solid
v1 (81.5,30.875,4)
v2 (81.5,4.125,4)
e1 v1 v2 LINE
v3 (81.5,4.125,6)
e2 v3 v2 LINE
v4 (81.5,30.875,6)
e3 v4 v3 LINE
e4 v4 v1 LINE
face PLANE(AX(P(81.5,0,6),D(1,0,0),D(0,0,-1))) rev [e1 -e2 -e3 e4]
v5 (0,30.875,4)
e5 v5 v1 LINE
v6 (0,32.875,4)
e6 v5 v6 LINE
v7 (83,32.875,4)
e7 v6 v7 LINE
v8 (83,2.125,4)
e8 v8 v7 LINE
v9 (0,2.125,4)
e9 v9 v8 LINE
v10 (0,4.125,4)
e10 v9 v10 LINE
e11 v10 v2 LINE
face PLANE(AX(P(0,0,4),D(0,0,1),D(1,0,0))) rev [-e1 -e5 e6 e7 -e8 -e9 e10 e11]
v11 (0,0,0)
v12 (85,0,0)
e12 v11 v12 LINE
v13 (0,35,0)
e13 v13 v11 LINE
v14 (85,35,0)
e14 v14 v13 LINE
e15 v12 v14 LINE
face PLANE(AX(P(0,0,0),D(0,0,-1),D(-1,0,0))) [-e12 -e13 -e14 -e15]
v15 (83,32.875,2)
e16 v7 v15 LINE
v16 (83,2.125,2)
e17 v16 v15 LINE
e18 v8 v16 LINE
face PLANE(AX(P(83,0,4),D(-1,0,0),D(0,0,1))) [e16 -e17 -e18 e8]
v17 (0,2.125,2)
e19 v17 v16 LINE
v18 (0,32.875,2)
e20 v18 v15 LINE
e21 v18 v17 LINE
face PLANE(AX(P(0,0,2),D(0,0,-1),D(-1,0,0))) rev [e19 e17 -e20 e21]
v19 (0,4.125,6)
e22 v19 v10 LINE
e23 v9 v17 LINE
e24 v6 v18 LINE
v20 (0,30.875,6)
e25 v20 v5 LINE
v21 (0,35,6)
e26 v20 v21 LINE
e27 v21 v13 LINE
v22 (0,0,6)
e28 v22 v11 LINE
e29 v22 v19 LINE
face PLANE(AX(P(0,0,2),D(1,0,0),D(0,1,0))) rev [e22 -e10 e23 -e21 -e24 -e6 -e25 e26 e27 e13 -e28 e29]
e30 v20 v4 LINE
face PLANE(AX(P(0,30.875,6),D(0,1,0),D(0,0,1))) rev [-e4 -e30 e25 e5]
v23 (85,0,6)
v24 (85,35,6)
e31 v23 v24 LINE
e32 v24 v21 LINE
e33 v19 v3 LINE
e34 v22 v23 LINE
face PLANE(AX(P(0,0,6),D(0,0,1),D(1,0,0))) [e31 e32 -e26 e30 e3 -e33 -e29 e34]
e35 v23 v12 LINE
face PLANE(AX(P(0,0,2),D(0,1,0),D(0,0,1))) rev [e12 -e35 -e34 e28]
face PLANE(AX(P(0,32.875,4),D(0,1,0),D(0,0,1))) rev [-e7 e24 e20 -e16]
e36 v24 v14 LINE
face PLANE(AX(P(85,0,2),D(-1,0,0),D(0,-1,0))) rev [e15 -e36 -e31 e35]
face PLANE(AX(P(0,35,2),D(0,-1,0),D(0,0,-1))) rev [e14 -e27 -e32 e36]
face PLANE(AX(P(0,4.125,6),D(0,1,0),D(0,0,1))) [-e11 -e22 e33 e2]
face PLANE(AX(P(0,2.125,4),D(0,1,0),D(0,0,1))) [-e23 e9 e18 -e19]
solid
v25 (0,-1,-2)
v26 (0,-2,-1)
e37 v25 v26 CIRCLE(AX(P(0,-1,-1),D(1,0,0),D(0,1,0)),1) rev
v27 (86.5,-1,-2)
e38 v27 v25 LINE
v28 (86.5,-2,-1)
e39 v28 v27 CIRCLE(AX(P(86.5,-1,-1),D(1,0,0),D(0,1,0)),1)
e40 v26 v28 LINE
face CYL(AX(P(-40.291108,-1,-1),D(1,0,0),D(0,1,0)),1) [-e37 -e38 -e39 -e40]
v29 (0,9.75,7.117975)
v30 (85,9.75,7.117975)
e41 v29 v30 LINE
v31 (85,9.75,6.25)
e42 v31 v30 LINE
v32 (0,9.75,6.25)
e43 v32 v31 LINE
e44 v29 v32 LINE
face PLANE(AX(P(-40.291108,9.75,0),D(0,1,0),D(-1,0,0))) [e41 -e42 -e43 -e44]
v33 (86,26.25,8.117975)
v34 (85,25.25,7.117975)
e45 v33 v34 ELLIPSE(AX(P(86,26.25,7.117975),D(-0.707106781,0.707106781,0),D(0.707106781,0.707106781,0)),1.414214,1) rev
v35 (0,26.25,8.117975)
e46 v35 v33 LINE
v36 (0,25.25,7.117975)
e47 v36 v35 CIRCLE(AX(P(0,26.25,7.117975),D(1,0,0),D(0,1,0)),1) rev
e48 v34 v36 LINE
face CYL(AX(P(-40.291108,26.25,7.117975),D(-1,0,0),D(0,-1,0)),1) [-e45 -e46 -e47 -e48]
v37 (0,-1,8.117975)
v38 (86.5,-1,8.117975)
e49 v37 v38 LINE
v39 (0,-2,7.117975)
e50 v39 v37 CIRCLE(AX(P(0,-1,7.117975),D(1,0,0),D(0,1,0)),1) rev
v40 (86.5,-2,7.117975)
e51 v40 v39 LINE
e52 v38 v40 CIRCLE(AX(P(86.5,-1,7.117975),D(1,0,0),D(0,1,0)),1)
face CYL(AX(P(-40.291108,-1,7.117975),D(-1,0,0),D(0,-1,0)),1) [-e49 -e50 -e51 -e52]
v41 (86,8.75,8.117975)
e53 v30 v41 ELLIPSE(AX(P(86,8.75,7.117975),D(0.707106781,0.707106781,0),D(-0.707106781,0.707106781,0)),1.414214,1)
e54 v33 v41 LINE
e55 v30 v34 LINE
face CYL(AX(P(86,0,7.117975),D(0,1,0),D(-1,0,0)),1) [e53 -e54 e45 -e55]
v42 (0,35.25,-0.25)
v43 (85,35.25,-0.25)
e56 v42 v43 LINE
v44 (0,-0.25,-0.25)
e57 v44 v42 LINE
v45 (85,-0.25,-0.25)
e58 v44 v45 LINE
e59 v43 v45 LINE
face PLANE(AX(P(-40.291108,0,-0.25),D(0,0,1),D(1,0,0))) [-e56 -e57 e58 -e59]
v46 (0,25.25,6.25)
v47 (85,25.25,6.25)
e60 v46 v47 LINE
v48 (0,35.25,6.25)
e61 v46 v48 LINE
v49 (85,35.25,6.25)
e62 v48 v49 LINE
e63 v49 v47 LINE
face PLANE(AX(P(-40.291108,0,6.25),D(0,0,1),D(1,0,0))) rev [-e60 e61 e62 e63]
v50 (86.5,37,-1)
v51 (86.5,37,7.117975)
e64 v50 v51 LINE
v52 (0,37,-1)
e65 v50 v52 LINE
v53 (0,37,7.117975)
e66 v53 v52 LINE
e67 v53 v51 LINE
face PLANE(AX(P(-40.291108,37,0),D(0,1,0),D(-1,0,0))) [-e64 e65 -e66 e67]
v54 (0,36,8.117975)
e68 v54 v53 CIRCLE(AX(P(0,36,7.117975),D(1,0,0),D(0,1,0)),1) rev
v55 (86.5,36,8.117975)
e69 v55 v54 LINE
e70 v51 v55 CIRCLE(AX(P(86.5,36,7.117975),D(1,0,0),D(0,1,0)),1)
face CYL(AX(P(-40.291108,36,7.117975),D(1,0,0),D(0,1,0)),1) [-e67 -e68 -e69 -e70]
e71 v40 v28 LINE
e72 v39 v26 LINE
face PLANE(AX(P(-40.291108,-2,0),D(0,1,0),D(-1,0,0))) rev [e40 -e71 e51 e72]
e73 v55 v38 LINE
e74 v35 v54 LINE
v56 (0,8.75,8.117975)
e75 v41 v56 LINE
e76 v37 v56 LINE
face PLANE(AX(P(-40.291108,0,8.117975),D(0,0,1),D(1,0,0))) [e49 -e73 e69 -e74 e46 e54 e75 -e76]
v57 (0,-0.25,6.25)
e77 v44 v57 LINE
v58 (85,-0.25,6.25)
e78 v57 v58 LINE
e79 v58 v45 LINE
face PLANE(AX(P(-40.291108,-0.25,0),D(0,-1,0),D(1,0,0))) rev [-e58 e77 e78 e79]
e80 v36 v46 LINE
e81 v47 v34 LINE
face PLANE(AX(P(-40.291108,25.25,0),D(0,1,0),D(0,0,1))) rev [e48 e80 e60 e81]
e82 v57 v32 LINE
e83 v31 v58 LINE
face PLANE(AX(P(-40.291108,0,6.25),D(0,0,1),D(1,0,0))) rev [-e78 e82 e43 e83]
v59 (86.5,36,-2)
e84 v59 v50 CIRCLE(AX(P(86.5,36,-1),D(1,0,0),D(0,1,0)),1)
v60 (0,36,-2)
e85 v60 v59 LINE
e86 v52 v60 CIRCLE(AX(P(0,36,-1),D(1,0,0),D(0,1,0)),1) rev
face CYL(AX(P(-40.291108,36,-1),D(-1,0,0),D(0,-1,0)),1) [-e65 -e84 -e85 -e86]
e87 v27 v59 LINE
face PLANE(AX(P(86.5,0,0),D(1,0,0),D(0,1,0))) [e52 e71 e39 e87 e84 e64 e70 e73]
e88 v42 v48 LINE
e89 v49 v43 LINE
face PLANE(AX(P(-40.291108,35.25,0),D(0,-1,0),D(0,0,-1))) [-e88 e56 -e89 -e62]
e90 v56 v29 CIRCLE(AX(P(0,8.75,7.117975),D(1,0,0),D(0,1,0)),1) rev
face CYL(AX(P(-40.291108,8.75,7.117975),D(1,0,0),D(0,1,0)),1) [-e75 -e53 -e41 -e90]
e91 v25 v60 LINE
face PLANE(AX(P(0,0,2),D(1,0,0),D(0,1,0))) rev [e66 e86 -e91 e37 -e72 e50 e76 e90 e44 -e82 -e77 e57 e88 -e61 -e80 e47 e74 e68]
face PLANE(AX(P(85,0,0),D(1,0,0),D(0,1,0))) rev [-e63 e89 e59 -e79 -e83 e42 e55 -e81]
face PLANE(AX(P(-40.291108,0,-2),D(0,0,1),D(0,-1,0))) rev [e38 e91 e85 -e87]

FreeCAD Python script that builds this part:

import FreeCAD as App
import Part
import Sketcher
from FreeCAD import Vector


def edges_at(feature, points):
    """Names of the edges that pass closest to the given points."""
    edges = feature.Shape.Edges
    near = lambda p: min(range(len(edges)), key=lambda i: edges[i].distToShape(Part.Vertex(*p))[0])
    return sorted({f"Edge{near(p) + 1}" for p in points})


def add_polygon(sketch, points):
    """Adds a closed chain of lines whose ends are joined by coincident constraints."""
    first, n = sketch.GeometryCount, len(points)
    for a, b in zip(points, points[1:] + points[:1]):
        sketch.addGeometry(Part.LineSegment(App.Vector(*a, 0), App.Vector(*b, 0)), False)
    for i in range(n):
        sketch.addConstraint(Sketcher.Constraint("Coincident", first + i, 2, first + (i + 1) % n, 1))

doc = App.newDocument("Part")
body = doc.addObject("PartDesign::Body", "Body")

# Sketch on XY plane
sketch1 = body.newObject("Sketcher::SketchObject", "Sketch")
sketch1.AttachmentSupport = (doc.getObject("XY_Plane"), [""])
sketch1.MapMode = "FlatFace"
add_polygon(sketch1, [(0, 35), (0, 0), (85, 0), (85, 35)])  # lines 0-3
sketch1.addConstraint(Sketcher.Constraint("Vertical", 0))
sketch1.addConstraint(Sketcher.Constraint("Horizontal", 1))
sketch1.addConstraint(Sketcher.Constraint("Vertical", 2))
sketch1.addConstraint(Sketcher.Constraint("Horizontal", 3))
sketch1.addConstraint(Sketcher.Constraint("Coincident", 0, 2, -1, 1))
sketch1.addConstraint(Sketcher.Constraint("DistanceX", 1, 1, 1, 2, 85.0))
sketch1.addConstraint(Sketcher.Constraint("DistanceY", 0, 2, 0, 1, 35.0))
pad1 = body.newObject("PartDesign::Pad", "Pad")
pad1.Profile = sketch1
pad1.Length = 2

# Sketch on XY plane
sketch2 = body.newObject("Sketcher::SketchObject", "Sketch001")
sketch2.AttachmentSupport = (doc.getObject("XY_Plane"), [""])
sketch2.MapMode = "FlatFace"
sketch2.AttachmentOffset = App.Placement(Vector(0, 0, 2), App.Rotation())
add_polygon(sketch2, [(83, 2.1), (0, 2.1), (0, 0), (85, 0), (85, 35), (0, 35), (0, 32.9), (83, 32.9)])  # lines 0-7
sketch2.addConstraint(Sketcher.Constraint("Horizontal", 0))
sketch2.addConstraint(Sketcher.Constraint("Vertical", 1))
sketch2.addConstraint(Sketcher.Constraint("Horizontal", 2))
sketch2.addConstraint(Sketcher.Constraint("Vertical", 3))
sketch2.addConstraint(Sketcher.Constraint("Horizontal", 4))
sketch2.addConstraint(Sketcher.Constraint("Vertical", 5))
sketch2.addConstraint(Sketcher.Constraint("Horizontal", 6))
sketch2.addConstraint(Sketcher.Constraint("Vertical", 7))
sketch2.addConstraint(Sketcher.Constraint("Coincident", 1, 2, -1, 1))
sketch2.addConstraint(Sketcher.Constraint("PointOnObject", 4, 2, -2))
sketch2.addConstraint(Sketcher.Constraint("Equal", 1, 5))
sketch2.addConstraint(Sketcher.Constraint("DistanceX", 0, 2, 0, 1, 83.0))
sketch2.addConstraint(Sketcher.Constraint("DistanceX", 2, 1, 2, 2, 85.0))
sketch2.addConstraint(Sketcher.Constraint("DistanceY", 3, 1, 3, 2, 35.0))
sketch2.addConstraint(Sketcher.Constraint("DistanceY", 7, 2, 7, 1, 30.75))
pad2 = body.newObject("PartDesign::Pad", "Pad001")
pad2.Profile = sketch2
pad2.Length = 2

# Sketch on XY plane
sketch3 = body.newObject("Sketcher::SketchObject", "Sketch002")
sketch3.AttachmentSupport = (doc.getObject("XY_Plane"), [""])
sketch3.MapMode = "FlatFace"
sketch3.AttachmentOffset = App.Placement(Vector(0, 0, 4), App.Rotation())
add_polygon(sketch3, [(0, 4.1), (0, 0), (85, 0), (85, 35), (0, 35), (0, 30.9), (81.5, 30.9), (81.5, 4.1)])  # lines 0-7
sketch3.addConstraint(Sketcher.Constraint("Vertical", 0))
sketch3.addConstraint(Sketcher.Constraint("Horizontal", 1))
sketch3.addConstraint(Sketcher.Constraint("Vertical", 2))
sketch3.addConstraint(Sketcher.Constraint("Horizontal", 3))
sketch3.addConstraint(Sketcher.Constraint("Vertical", 4))
sketch3.addConstraint(Sketcher.Constraint("Horizontal", 5))
sketch3.addConstraint(Sketcher.Constraint("Vertical", 6))
sketch3.addConstraint(Sketcher.Constraint("Horizontal", 7))
sketch3.addConstraint(Sketcher.Constraint("Coincident", 0, 2, -1, 1))
sketch3.addConstraint(Sketcher.Constraint("PointOnObject", 3, 2, -2))
sketch3.addConstraint(Sketcher.Constraint("Equal", 0, 4))
sketch3.addConstraint(Sketcher.Constraint("DistanceX", 1, 1, 1, 2, 85.0))
sketch3.addConstraint(Sketcher.Constraint("DistanceY", 2, 1, 2, 2, 35.0))
sketch3.addConstraint(Sketcher.Constraint("DistanceX", 5, 1, 5, 2, 81.5))
sketch3.addConstraint(Sketcher.Constraint("DistanceY", 6, 2, 6, 1, 26.75))
pad3 = body.newObject("PartDesign::Pad", "Pad002")
pad3.Profile = sketch3
pad3.Length = 2
body2 = doc.addObject("PartDesign::Body", "Body001")

# Sketch on YZ plane
sketch4 = body2.newObject("Sketcher::SketchObject", "Sketch003")
sketch4.AttachmentSupport = (doc.getObject("YZ_Plane001"), [""])
sketch4.MapMode = "FlatFace"
sketch4.AttachmentOffset = App.Placement(Vector(0, 0, 85), App.Rotation())
add_polygon(sketch4, [(-2, -2), (37, -2), (37, 8.1), (25.2, 8.1), (25.2, 6.2), (35.2, 6.2), (35.2, -0.2), (-0.2, -0.2), (-0.2, 6.2), (9.8, 6.2), (9.8, 8.1), (-2, 8.1)])  # lines 0-11
sketch4.addConstraint(Sketcher.Constraint("Horizontal", 0))
sketch4.addConstraint(Sketcher.Constraint("Vertical", 1))
sketch4.addConstraint(Sketcher.Constraint("Horizontal", 2))
sketch4.addConstraint(Sketcher.Constraint("Vertical", 3))
sketch4.addConstraint(Sketcher.Constraint("Horizontal", 4))
sketch4.addConstraint(Sketcher.Constraint("Vertical", 5))
sketch4.addConstraint(Sketcher.Constraint("Horizontal", 6))
sketch4.addConstraint(Sketcher.Constraint("Vertical", 7))
sketch4.addConstraint(Sketcher.Constraint("Horizontal", 8))
sketch4.addConstraint(Sketcher.Constraint("Vertical", 9))
sketch4.addConstraint(Sketcher.Constraint("Horizontal", 10))
sketch4.addConstraint(Sketcher.Constraint("Vertical", 11))
sketch4.addConstraint(Sketcher.Constraint("Horizontal", 4, 2, 7, 2))
sketch4.addConstraint(Sketcher.Constraint("Horizontal", 2, 2, 9, 2))
sketch4.addConstraint(Sketcher.Constraint("Equal", 4, 8))
sketch4.addConstraint(Sketcher.Constraint("Equal", 2, 10))
sketch4.addConstraint(Sketcher.Constraint("DistanceX", 0, 1, 0, 2, 39.0))
sketch4.addConstraint(Sketcher.Constraint("DistanceX", 4, 1, 4, 2, 10.0))
sketch4.addConstraint(Sketcher.Constraint("DistanceX", 6, 2, 6, 1, 35.5))
sketch4.addConstraint(Sketcher.Constraint("DistanceY", 5, 2, 5, 1, 6.5))
sketch4.addConstraint(Sketcher.Constraint("DistanceX", -1, 1, 0, 2, 37.0))
sketch4.addConstraint(Sketcher.Constraint("DistanceY", 0, 2, -1, 1, 2.0))
sketch4.addConstraint(Sketcher.Constraint("DistanceY", -1, 1, 3, 2, 6.25))
sketch4.addConstraint(Sketcher.Constraint("DistanceY", 1, 1, 1, 2, 10.117975))
pad4 = body2.newObject("PartDesign::Pad", "Pad003")
pad4.Profile = sketch4
pad4.Length = 85
pad4.Reversed = True

# Sketch on YZ plane
sketch5 = body2.newObject("Sketcher::SketchObject", "Sketch004")
sketch5.AttachmentSupport = (doc.getObject("YZ_Plane001"), [""])
sketch5.MapMode = "FlatFace"
sketch5.AttachmentOffset = App.Placement(Vector(0, 0, 85), App.Rotation())
add_polygon(sketch5, [(37, 8), (-2, 8), (-2, -2), (37, -2)])  # lines 0-3
sketch5.addConstraint(Sketcher.Constraint("Horizontal", 0))
sketch5.addConstraint(Sketcher.Constraint("Vertical", 1))
sketch5.addConstraint(Sketcher.Constraint("Horizontal", 2))
sketch5.addConstraint(Sketcher.Constraint("Vertical", 3))
sketch5.addConstraint(Sketcher.Constraint("DistanceX", 0, 2, 0, 1, 39.0))
sketch5.addConstraint(Sketcher.Constraint("DistanceX", 0, 2, -1, 1, 2.0))
sketch5.addConstraint(Sketcher.Constraint("DistanceY", 1, 2, -1, 1, 2.0))
sketch5.addConstraint(Sketcher.Constraint("DistanceY", 1, 2, 1, 1, 10.117975))
pad5 = body2.newObject("PartDesign::Pad", "Pad004")
pad5.Profile = sketch5
pad5.Length = 1.5
doc.recompute()

fillet = body2.newObject("PartDesign::Fillet", "Fillet")
fillet.Base = (pad5, edges_at(pad5, [
    (42.5, 9.75, 8.118),
    (43.25, -2, 8.118),
    (43.25, -2, -2),
    (43.25, 37, -2),
    (43.25, 37, 8.118),
    (42.5, 25.25, 8.118),
    (85, 17.5, 8.118),
]))
fillet.Radius = 1

doc.recompute()
